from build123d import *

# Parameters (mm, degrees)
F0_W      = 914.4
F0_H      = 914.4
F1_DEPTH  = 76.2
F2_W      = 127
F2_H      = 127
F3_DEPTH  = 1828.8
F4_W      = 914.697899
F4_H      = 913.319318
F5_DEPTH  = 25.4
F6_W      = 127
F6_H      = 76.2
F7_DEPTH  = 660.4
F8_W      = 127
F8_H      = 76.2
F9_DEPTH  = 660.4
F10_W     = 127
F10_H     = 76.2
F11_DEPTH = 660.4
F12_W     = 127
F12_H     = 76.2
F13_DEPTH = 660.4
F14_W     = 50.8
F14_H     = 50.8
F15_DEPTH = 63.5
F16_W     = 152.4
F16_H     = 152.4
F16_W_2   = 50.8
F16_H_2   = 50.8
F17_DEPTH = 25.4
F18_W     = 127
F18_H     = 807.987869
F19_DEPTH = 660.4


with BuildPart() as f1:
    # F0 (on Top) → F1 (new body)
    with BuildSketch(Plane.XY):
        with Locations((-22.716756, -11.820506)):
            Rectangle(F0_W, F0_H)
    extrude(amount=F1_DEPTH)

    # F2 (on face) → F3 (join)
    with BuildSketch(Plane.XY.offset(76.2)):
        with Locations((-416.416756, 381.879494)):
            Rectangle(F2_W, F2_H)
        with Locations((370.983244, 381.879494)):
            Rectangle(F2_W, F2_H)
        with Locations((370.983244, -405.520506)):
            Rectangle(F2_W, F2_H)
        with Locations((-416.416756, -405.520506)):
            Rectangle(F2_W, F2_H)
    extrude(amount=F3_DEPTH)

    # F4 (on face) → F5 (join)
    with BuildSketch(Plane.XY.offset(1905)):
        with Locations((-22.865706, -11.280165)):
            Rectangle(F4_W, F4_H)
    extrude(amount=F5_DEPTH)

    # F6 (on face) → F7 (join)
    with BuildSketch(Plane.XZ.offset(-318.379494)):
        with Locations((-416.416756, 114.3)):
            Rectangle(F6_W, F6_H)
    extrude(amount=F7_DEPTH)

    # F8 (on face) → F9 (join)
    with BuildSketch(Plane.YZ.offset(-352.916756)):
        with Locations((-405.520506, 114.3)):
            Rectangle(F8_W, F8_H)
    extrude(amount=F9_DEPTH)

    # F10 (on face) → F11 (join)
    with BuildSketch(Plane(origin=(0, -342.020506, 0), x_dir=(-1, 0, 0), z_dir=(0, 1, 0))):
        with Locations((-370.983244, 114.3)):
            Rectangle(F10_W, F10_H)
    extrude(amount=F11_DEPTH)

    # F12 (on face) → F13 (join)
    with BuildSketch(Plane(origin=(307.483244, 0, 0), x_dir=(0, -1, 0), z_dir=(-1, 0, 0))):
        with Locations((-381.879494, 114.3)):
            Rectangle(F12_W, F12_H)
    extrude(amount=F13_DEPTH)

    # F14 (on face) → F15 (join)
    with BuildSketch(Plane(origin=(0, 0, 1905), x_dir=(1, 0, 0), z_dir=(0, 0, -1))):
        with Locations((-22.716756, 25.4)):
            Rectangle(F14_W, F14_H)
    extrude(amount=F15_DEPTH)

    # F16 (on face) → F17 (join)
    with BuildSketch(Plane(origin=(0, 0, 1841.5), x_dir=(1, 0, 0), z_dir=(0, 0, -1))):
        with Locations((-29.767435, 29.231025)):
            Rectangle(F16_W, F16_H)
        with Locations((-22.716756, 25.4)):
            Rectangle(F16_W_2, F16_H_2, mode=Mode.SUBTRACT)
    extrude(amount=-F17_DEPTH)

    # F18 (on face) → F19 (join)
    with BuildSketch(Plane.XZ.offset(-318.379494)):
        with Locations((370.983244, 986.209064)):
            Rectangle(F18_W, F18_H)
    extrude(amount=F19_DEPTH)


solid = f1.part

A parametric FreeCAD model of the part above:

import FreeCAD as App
import Part
import Sketcher
from FreeCAD import Vector
Q = App.Units.Quantity

doc = App.newDocument("Part")
body = doc.addObject("PartDesign::Body", "Body")

sketch1 = body.newObject("Sketcher::SketchObject", "Sketch")
sketch1.AttachmentSupport = (doc.getObject("XY_Plane"), [""])
sketch1.MapMode = "FlatFace"
sketch1.addGeometry([
    Part.LineSegment(Vector(-480, 445, 0), Vector(-480, -469, 0)),
    Part.LineSegment(Vector(-480, -469, 0), Vector(434, -469, 0)),
    Part.LineSegment(Vector(434, -469, 0), Vector(434, 445, 0)),
    Part.LineSegment(Vector(434, 445, 0), Vector(-480, 445, 0)),
], False)
sketch1.addConstraint([
    Sketcher.Constraint("Coincident", 0, 2, 1, 1),
    Sketcher.Constraint("Coincident", 1, 2, 2, 1),
    Sketcher.Constraint("Coincident", 2, 2, 3, 1),
    Sketcher.Constraint("Coincident", 3, 2, 0, 1),
    Sketcher.Constraint("Vertical", 0),
    Sketcher.Constraint("Horizontal", 1),
    Sketcher.Constraint("Vertical", 2),
    Sketcher.Constraint("Horizontal", 3),
    Sketcher.Constraint("Equal", 3, 0),
    Sketcher.Constraint("DistanceX", 1, 1, 1, 2, Q("36 in")),
    Sketcher.Constraint("DistanceX", 0, 2, -1, 1, 479.916756),
    Sketcher.Constraint("DistanceY", 0, 2, -1, 1, 469.020506),
])
pad1 = body.newObject("PartDesign::Pad", "Pad")
pad1.Profile = sketch1
pad1.Length = Q("3 in")

sketch2 = body.newObject("Sketcher::SketchObject", "Sketch001")
sketch2.AttachmentSupport = (doc.getObject("XY_Plane"), [""])
sketch2.MapMode = "FlatFace"
sketch2.AttachmentOffset = App.Placement(Vector(0, 0, 3 * 25.4), App.Rotation())
sketch2.addGeometry([
    Part.LineSegment(Vector(-480, 445, 0), Vector(-480, 318, 0)),
    Part.LineSegment(Vector(-480, 318, 0), Vector(-353, 318, 0)),
    Part.LineSegment(Vector(-353, 318, 0), Vector(-353, 445, 0)),
    Part.LineSegment(Vector(-353, 445, 0), Vector(-480, 445, 0)),
    Part.LineSegment(Vector(307, 445, 0), Vector(307, 318, 0)),
    Part.LineSegment(Vector(307, 318, 0), Vector(434, 318, 0)),
    Part.LineSegment(Vector(434, 318, 0), Vector(434, 445, 0)),
    Part.LineSegment(Vector(434, 445, 0), Vector(307, 445, 0)),
    Part.LineSegment(Vector(307, -342, 0), Vector(307, -469, 0)),
    Part.LineSegment(Vector(307, -469, 0), Vector(434, -469, 0)),
    Part.LineSegment(Vector(434, -469, 0), Vector(434, -342, 0)),
    Part.LineSegment(Vector(434, -342, 0), Vector(307, -342, 0)),
    Part.LineSegment(Vector(-480, -342, 0), Vector(-480, -469, 0)),
    Part.LineSegment(Vector(-480, -469, 0), Vector(-353, -469, 0)),
    Part.LineSegment(Vector(-353, -469, 0), Vector(-353, -342, 0)),
    Part.LineSegment(Vector(-353, -342, 0), Vector(-480, -342, 0)),
], False)
sketch2.addConstraint([
    Sketcher.Constraint("Coincident", 0, 2, 1, 1),
    Sketcher.Constraint("Coincident", 1, 2, 2, 1),
    Sketcher.Constraint("Coincident", 2, 2, 3, 1),
    Sketcher.Constraint("Coincident", 3, 2, 0, 1),
    Sketcher.Constraint("Coincident", 4, 2, 5, 1),
    Sketcher.Constraint("Coincident", 5, 2, 6, 1),
    Sketcher.Constraint("Coincident", 6, 2, 7, 1),
    Sketcher.Constraint("Coincident", 7, 2, 4, 1),
    Sketcher.Constraint("Coincident", 8, 2, 9, 1),
    Sketcher.Constraint("Coincident", 9, 2, 10, 1),
    Sketcher.Constraint("Coincident", 10, 2, 11, 1),
    Sketcher.Constraint("Coincident", 11, 2, 8, 1),
    Sketcher.Constraint("Coincident", 12, 2, 13, 1),
    Sketcher.Constraint("Coincident", 13, 2, 14, 1),
    Sketcher.Constraint("Coincident", 14, 2, 15, 1),
    Sketcher.Constraint("Coincident", 15, 2, 12, 1),
    Sketcher.Constraint("Vertical", 0),
    Sketcher.Constraint("Horizontal", 1),
    Sketcher.Constraint("Vertical", 2),
    Sketcher.Constraint("Horizontal", 3),
    Sketcher.Constraint("Vertical", 4),
    Sketcher.Constraint("Horizontal", 5),
    Sketcher.Constraint("Vertical", 6),
    Sketcher.Constraint("Horizontal", 7),
    Sketcher.Constraint("Vertical", 8),
    Sketcher.Constraint("Horizontal", 9),
    Sketcher.Constraint("Vertical", 10),
    Sketcher.Constraint("Horizontal", 11),
    Sketcher.Constraint("Vertical", 12),
    Sketcher.Constraint("Horizontal", 13),
    Sketcher.Constraint("Vertical", 14),
    Sketcher.Constraint("Horizontal", 15),
    Sketcher.Constraint("Horizontal", 1, 2, 4, 2),
    Sketcher.Constraint("Horizontal", 3, 2, 6, 2),
    Sketcher.Constraint("Horizontal", 9, 2, 12, 2),
    Sketcher.Constraint("Horizontal", 11, 2, 14, 2),
    Sketcher.Constraint("Vertical", 7, 2, 8, 2),
    Sketcher.Constraint("Vertical", 6, 2, 9, 2),
    Sketcher.Constraint("Vertical", 3, 2, 12, 2),
    Sketcher.Constraint("Vertical", 2, 2, 13, 2),
    Sketcher.Constraint("Equal", 3, 5),
    Sketcher.Constraint("Equal", 15, 0),
    Sketcher.Constraint("Equal", 6, 8),
    Sketcher.Constraint("DistanceX", 1, 1, 1, 2, Q("5 in")),
    Sketcher.Constraint("DistanceX", 1, 2, 4, 2, Q("26 in")),
    Sketcher.Constraint("DistanceY", 8, 2, 4, 2, Q("31 in")),
    Sketcher.Constraint("DistanceX", 0, 2, -1, 1, 479.916756),
    Sketcher.Constraint("DistanceY", -1, 1, 0, 2, 318.379494),
])
pad2 = body.newObject("PartDesign::Pad", "Pad001")
pad2.Profile = sketch2
pad2.Length = Q("72 in")

sketch3 = body.newObject("Sketcher::SketchObject", "Sketch002")
sketch3.AttachmentSupport = (doc.getObject("XY_Plane"), [""])
sketch3.MapMode = "FlatFace"
sketch3.AttachmentOffset = App.Placement(Vector(0, 0, 75 * 25.4), App.Rotation())
sketch3.addGeometry([
    Part.LineSegment(Vector(-480, 445, 0), Vector(-480, -468, 0)),
    Part.LineSegment(Vector(-480, -468, 0), Vector(434, -468, 0)),
    Part.LineSegment(Vector(434, -468, 0), Vector(434, 445, 0)),
    Part.LineSegment(Vector(434, 445, 0), Vector(-480, 445, 0)),
], False)
sketch3.addConstraint([
    Sketcher.Constraint("Coincident", 0, 2, 1, 1),
    Sketcher.Constraint("Coincident", 1, 2, 2, 1),
    Sketcher.Constraint("Coincident", 2, 2, 3, 1),
    Sketcher.Constraint("Coincident", 3, 2, 0, 1),
    Sketcher.Constraint("Vertical", 0),
    Sketcher.Constraint("Horizontal", 1),
    Sketcher.Constraint("Vertical", 2),
    Sketcher.Constraint("Horizontal", 3),
    Sketcher.Constraint("DistanceX", 1, 1, 1, 2, 914.697899),
    Sketcher.Constraint("DistanceY", 0, 2, 0, 1, 913.319318),
    Sketcher.Constraint("DistanceX", 0, 2, -1, 1, 480.214655),
    Sketcher.Constraint("DistanceY", 0, 2, -1, 1, 467.939824),
])
pad3 = body.newObject("PartDesign::Pad", "Pad002")
pad3.Profile = sketch3
pad3.Length = Q("1 in")

sketch4 = body.newObject("Sketcher::SketchObject", "Sketch003")
sketch4.AttachmentSupport = (doc.getObject("XZ_Plane"), [""])
sketch4.MapMode = "FlatFace"
sketch4.AttachmentOffset = App.Placement(Vector(0, 0, -318.379494), App.Rotation())
sketch4.addGeometry([
    Part.LineSegment(Vector(-480, 152, 0), Vector(-480, 76, 0)),
    Part.LineSegment(Vector(-480, 76, 0), Vector(-353, 76, 0)),
    Part.LineSegment(Vector(-353, 76, 0), Vector(-353, 152, 0)),
    Part.LineSegment(Vector(-353, 152, 0), Vector(-480, 152, 0)),
], False)
sketch4.addConstraint([
    Sketcher.Constraint("Coincident", 0, 2, 1, 1),
    Sketcher.Constraint("Coincident", 1, 2, 2, 1),
    Sketcher.Constraint("Coincident", 2, 2, 3, 1),
    Sketcher.Constraint("Coincident", 3, 2, 0, 1),
    Sketcher.Constraint("Vertical", 0),
    Sketcher.Constraint("Horizontal", 1),
    Sketcher.Constraint("Vertical", 2),
    Sketcher.Constraint("Horizontal", 3),
    Sketcher.Constraint("DistanceX", 1, 1, 1, 2, Q("5 in")),
    Sketcher.Constraint("DistanceY", 0, 2, 0, 1, Q("3 in")),
    Sketcher.Constraint("DistanceY", -1, 1, 0, 2, Q("3 in")),
    Sketcher.Constraint("DistanceX", 0, 2, -1, 1, 479.916756),
])
pad4 = body.newObject("PartDesign::Pad", "Pad003")
pad4.Profile = sketch4
pad4.Length = Q("26 in")

sketch5 = body.newObject("Sketcher::SketchObject", "Sketch004")
sketch5.AttachmentSupport = (doc.getObject("YZ_Plane"), [""])
sketch5.MapMode = "FlatFace"
sketch5.AttachmentOffset = App.Placement(Vector(0, 0, -352.916756), App.Rotation())
sketch5.addGeometry([
    Part.LineSegment(Vector(-469, 152, 0), Vector(-469, 76, 0)),
    Part.LineSegment(Vector(-469, 76, 0), Vector(-342, 76, 0)),
    Part.LineSegment(Vector(-342, 76, 0), Vector(-342, 152, 0)),
    Part.LineSegment(Vector(-342, 152, 0), Vector(-469, 152, 0)),
], False)
sketch5.addConstraint([
    Sketcher.Constraint("Coincident", 0, 2, 1, 1),
    Sketcher.Constraint("Coincident", 1, 2, 2, 1),
    Sketcher.Constraint("Coincident", 2, 2, 3, 1),
    Sketcher.Constraint("Coincident", 3, 2, 0, 1),
    Sketcher.Constraint("Vertical", 0),
    Sketcher.Constraint("Horizontal", 1),
    Sketcher.Constraint("Vertical", 2),
    Sketcher.Constraint("Horizontal", 3),
    Sketcher.Constraint("DistanceX", 1, 1, 1, 2, Q("5 in")),
    Sketcher.Constraint("DistanceY", 0, 2, 0, 1, Q("3 in")),
    Sketcher.Constraint("DistanceY", -1, 1, 0, 2, Q("3 in")),
    Sketcher.Constraint("DistanceX", 0, 2, -1, 1, 469.020506),
])
pad5 = body.newObject("PartDesign::Pad", "Pad004")
pad5.Profile = sketch5
pad5.Length = Q("26 in")

sketch6 = body.newObject("Sketcher::SketchObject", "Sketch005")
sketch6.AttachmentSupport = (doc.getObject("XZ_Plane"), [""])
sketch6.MapMode = "FlatFace"
sketch6.AttachmentOffset = App.Placement(Vector(0, 0, 342.020506), App.Rotation())
sketch6.addGeometry([
    Part.LineSegment(Vector(434, 152, 0), Vector(434, 76, 0)),
    Part.LineSegment(Vector(434, 76, 0), Vector(307, 76, 0)),
    Part.LineSegment(Vector(307, 76, 0), Vector(307, 152, 0)),
    Part.LineSegment(Vector(307, 152, 0), Vector(434, 152, 0)),
], False)
sketch6.addConstraint([
    Sketcher.Constraint("Coincident", 0, 2, 1, 1),
    Sketcher.Constraint("Coincident", 1, 2, 2, 1),
    Sketcher.Constraint("Coincident", 2, 2, 3, 1),
    Sketcher.Constraint("Coincident", 3, 2, 0, 1),
    Sketcher.Constraint("Vertical", 0),
    Sketcher.Constraint("Horizontal", 1),
    Sketcher.Constraint("Vertical", 2),
    Sketcher.Constraint("Horizontal", 3),
    Sketcher.Constraint("DistanceX", 1, 2, 1, 1, Q("5 in")),
    Sketcher.Constraint("DistanceY", 0, 2, 0, 1, Q("3 in")),
    Sketcher.Constraint("DistanceY", -1, 1, 0, 2, Q("3 in")),
    Sketcher.Constraint("DistanceX", -1, 1, 0, 2, 434.483244),
])
pad6 = body.newObject("PartDesign::Pad", "Pad005")
pad6.Profile = sketch6
pad6.Length = Q("26 in")
pad6.Reversed = True

sketch7 = body.newObject("Sketcher::SketchObject", "Sketch006")
sketch7.AttachmentSupport = (doc.getObject("YZ_Plane"), [""])
sketch7.MapMode = "FlatFace"
sketch7.AttachmentOffset = App.Placement(Vector(0, 0, 307.483244), App.Rotation())
sketch7.addGeometry([
    Part.LineSegment(Vector(445, 152, 0), Vector(445, 76, 0)),
    Part.LineSegment(Vector(445, 76, 0), Vector(318, 76, 0)),
    Part.LineSegment(Vector(318, 76, 0), Vector(318, 152, 0)),
    Part.LineSegment(Vector(318, 152, 0), Vector(445, 152, 0)),
], False)
sketch7.addConstraint([
    Sketcher.Constraint("Coincident", 0, 2, 1, 1),
    Sketcher.Constraint("Coincident", 1, 2, 2, 1),
    Sketcher.Constraint("Coincident", 2, 2, 3, 1),
    Sketcher.Constraint("Coincident", 3, 2, 0, 1),
    Sketcher.Constraint("Vertical", 0),
    Sketcher.Constraint("Horizontal", 1),
    Sketcher.Constraint("Vertical", 2),
    Sketcher.Constraint("Horizontal", 3),
    Sketcher.Constraint("DistanceX", 1, 2, 1, 1, Q("5 in")),
    Sketcher.Constraint("DistanceY", 0, 2, 0, 1, Q("3 in")),
    Sketcher.Constraint("DistanceY", -1, 1, 0, 2, Q("3 in")),
    Sketcher.Constraint("DistanceX", -1, 1, 0, 2, 445.379494),
])
pad7 = body.newObject("PartDesign::Pad", "Pad006")
pad7.Profile = sketch7
pad7.Length = Q("26 in")
pad7.Reversed = True

sketch8 = body.newObject("Sketcher::SketchObject", "Sketch007")
sketch8.AttachmentSupport = (doc.getObject("XY_Plane"), [""])
sketch8.MapMode = "FlatFace"
sketch8.AttachmentOffset = App.Placement(Vector(0, 0, 75 * 25.4), App.Rotation())
sketch8.addGeometry([
    Part.LineSegment(Vector(-48, -51, 0), Vector(-48, 0, 0)),
    Part.LineSegment(Vector(-48, 0, 0), Vector(3, 0, 0)),
    Part.LineSegment(Vector(3, 0, 0), Vector(3, -51, 0)),
    Part.LineSegment(Vector(3, -51, 0), Vector(-48, -51, 0)),
], False)
sketch8.addConstraint([
    Sketcher.Constraint("Coincident", 0, 2, 1, 1),
    Sketcher.Constraint("Coincident", 1, 2, 2, 1),
    Sketcher.Constraint("Coincident", 2, 2, 3, 1),
    Sketcher.Constraint("Coincident", 3, 2, 0, 1),
    Sketcher.Constraint("Vertical", 0),
    Sketcher.Constraint("Horizontal", 1),
    Sketcher.Constraint("Vertical", 2),
    Sketcher.Constraint("Horizontal", 3),
    Sketcher.Constraint("PointOnObject", 0, 2, -1),
    Sketcher.Constraint("Equal", 3, 0),
    Sketcher.Constraint("DistanceX", 1, 1, 1, 2, Q("2 in")),
    Sketcher.Constraint("DistanceX", 0, 2, -1, 1, 48.116756),
])
pad8 = body.newObject("PartDesign::Pad", "Pad007")
pad8.Profile = sketch8
pad8.Length = Q("2.5 in")
pad8.Reversed = True

sketch9 = body.newObject("Sketcher::SketchObject", "Sketch008")
sketch9.AttachmentSupport = (doc.getObject("XY_Plane"), [""])
sketch9.MapMode = "FlatFace"
sketch9.AttachmentOffset = App.Placement(Vector(0, 0, 72.5 * 25.4), App.Rotation())
sketch9.addGeometry([
    Part.LineSegment(Vector(-106, -105, 0), Vector(-106, 47, 0)),
    Part.LineSegment(Vector(-106, 47, 0), Vector(46, 47, 0)),
    Part.LineSegment(Vector(46, 47, 0), Vector(46, -105, 0)),
    Part.LineSegment(Vector(46, -105, 0), Vector(-106, -105, 0)),
    Part.LineSegment(Vector(3, 0, 0), Vector(-48, 0, 0)),
    Part.LineSegment(Vector(-48, 0, 0), Vector(-48, -51, 0)),
    Part.LineSegment(Vector(-48, -51, 0), Vector(3, -51, 0)),
    Part.LineSegment(Vector(3, -51, 0), Vector(3, 0, 0)),
], False)
sketch9.addConstraint([
    Sketcher.Constraint("Coincident", 0, 2, 1, 1),
    Sketcher.Constraint("Coincident", 1, 2, 2, 1),
    Sketcher.Constraint("Coincident", 2, 2, 3, 1),
    Sketcher.Constraint("Coincident", 3, 2, 0, 1),
    Sketcher.Constraint("Coincident", 4, 2, 5, 1),
    Sketcher.Constraint("Coincident", 5, 2, 6, 1),
    Sketcher.Constraint("Coincident", 6, 2, 7, 1),
    Sketcher.Constraint("Coincident", 7, 2, 4, 1),
    Sketcher.Constraint("Vertical", 0),
    Sketcher.Constraint("Horizontal", 1),
    Sketcher.Constraint("Vertical", 2),
    Sketcher.Constraint("Horizontal", 3),
    Sketcher.Constraint("Horizontal", 4),
    Sketcher.Constraint("Vertical", 5),
    Sketcher.Constraint("Horizontal", 6),
    Sketcher.Constraint("Vertical", 7),
    Sketcher.Constraint("PointOnObject", 4, 2, -1),
    Sketcher.Constraint("Equal", 3, 0),
    Sketcher.Constraint("Equal", 6, 5),
    Sketcher.Constraint("DistanceX", 1, 1, 1, 2, Q("6 in")),
    Sketcher.Constraint("DistanceX", 4, 2, 4, 1, Q("2 in")),
    Sketcher.Constraint("DistanceX", 0, 2, 4, 2, 57.850679),
    Sketcher.Constraint("DistanceX", 0, 2, -1, 1, 105.967435),
    Sketcher.Constraint("DistanceY", -1, 1, 0, 2, 46.968975),
])
pad9 = body.newObject("PartDesign::Pad", "Pad008")
pad9.Profile = sketch9
pad9.Length = Q("1 in")

sketch10 = body.newObject("Sketcher::SketchObject", "Sketch009")
sketch10.AttachmentSupport = (doc.getObject("XZ_Plane"), [""])
sketch10.MapMode = "FlatFace"
sketch10.AttachmentOffset = App.Placement(Vector(0, 0, -318.379494), App.Rotation())
sketch10.addGeometry([
    Part.LineSegment(Vector(307, 1390, 0), Vector(307, 582, 0)),
    Part.LineSegment(Vector(307, 582, 0), Vector(434, 582, 0)),
    Part.LineSegment(Vector(434, 582, 0), Vector(434, 1390, 0)),
    Part.LineSegment(Vector(434, 1390, 0), Vector(307, 1390, 0)),
], False)
sketch10.addConstraint([
    Sketcher.Constraint("Coincident", 0, 2, 1, 1),
    Sketcher.Constraint("Coincident", 1, 2, 2, 1),
    Sketcher.Constraint("Coincident", 2, 2, 3, 1),
    Sketcher.Constraint("Coincident", 3, 2, 0, 1),
    Sketcher.Constraint("Vertical", 0),
    Sketcher.Constraint("Horizontal", 1),
    Sketcher.Constraint("Vertical", 2),
    Sketcher.Constraint("Horizontal", 3),
    Sketcher.Constraint("DistanceX", 1, 1, 1, 2, Q("5 in")),
    Sketcher.Constraint("DistanceY", 0, 2, 0, 1, 807.987869),
    Sketcher.Constraint("DistanceY", -1, 1, 2, 2, 1390.202998),
    Sketcher.Constraint("DistanceX", -1, 1, 0, 2, 307.483244),
])
pad10 = body.newObject("PartDesign::Pad", "Pad009")
pad10.Profile = sketch10
pad10.Length = Q("26 in")

doc.recompute()
